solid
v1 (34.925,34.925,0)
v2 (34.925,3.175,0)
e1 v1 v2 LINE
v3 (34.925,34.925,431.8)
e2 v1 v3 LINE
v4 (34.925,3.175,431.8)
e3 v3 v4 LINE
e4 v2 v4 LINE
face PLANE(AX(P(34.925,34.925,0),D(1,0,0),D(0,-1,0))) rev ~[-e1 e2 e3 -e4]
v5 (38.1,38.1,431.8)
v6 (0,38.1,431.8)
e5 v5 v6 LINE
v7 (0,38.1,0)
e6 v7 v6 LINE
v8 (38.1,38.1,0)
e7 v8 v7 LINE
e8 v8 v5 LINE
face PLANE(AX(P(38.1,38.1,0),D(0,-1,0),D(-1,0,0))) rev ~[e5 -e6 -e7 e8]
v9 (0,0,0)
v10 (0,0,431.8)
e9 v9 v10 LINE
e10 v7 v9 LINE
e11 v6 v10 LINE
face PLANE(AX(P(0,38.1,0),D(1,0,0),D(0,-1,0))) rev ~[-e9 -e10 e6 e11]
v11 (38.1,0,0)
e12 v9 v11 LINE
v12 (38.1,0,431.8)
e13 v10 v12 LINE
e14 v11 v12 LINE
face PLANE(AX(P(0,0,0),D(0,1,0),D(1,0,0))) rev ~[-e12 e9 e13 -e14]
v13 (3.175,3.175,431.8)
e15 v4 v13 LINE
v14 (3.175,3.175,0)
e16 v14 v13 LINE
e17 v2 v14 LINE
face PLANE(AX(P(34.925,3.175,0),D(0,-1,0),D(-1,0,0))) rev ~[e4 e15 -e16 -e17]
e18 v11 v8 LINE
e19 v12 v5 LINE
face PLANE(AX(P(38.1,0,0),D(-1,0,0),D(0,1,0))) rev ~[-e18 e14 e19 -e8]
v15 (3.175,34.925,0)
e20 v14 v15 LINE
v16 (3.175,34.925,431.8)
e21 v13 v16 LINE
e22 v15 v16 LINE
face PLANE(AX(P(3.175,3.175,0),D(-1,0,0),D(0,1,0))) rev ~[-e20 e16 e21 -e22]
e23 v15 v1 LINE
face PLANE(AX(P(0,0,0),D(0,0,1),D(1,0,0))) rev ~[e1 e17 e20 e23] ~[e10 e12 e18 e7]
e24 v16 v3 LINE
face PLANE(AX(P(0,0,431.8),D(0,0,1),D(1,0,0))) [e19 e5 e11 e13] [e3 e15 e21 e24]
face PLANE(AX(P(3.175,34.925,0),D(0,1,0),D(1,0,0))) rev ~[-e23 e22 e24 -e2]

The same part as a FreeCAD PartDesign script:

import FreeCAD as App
import Part
import Sketcher
from FreeCAD import Vector
Q = App.Units.Quantity


def add_polygon(sketch, points):
    """Adds a closed chain of lines whose ends are joined by coincident constraints."""
    first, n = sketch.GeometryCount, len(points)
    for a, b in zip(points, points[1:] + points[:1]):
        sketch.addGeometry(Part.LineSegment(App.Vector(*a, 0), App.Vector(*b, 0)), False)
    for i in range(n):
        sketch.addConstraint(Sketcher.Constraint("Coincident", first + i, 2, first + (i + 1) % n, 1))

doc = App.newDocument("Part")
body = doc.addObject("PartDesign::Body", "Body")

sketch1 = doc.addObject("Sketcher::SketchObject", "Sketch")
body.addObject(sketch1)
sketch1.AttachmentSupport = (doc.XY_Plane, [""])
sketch1.MapMode = "FlatFace"
add_polygon(sketch1, [(0, 38), (0, 0), (38, 0), (38, 38)])
add_polygon(sketch1, [(3, 3), (3, 35), (35, 35), (35, 3)])
sketch1.addConstraint(Sketcher.Constraint("Vertical", 0))
sketch1.addConstraint(Sketcher.Constraint("Horizontal", 1))
sketch1.addConstraint(Sketcher.Constraint("Vertical", 2))
sketch1.addConstraint(Sketcher.Constraint("Horizontal", 3))
sketch1.addConstraint(Sketcher.Constraint("Vertical", 4))
sketch1.addConstraint(Sketcher.Constraint("Horizontal", 5))
sketch1.addConstraint(Sketcher.Constraint("Vertical", 6))
sketch1.addConstraint(Sketcher.Constraint("Horizontal", 7))
sketch1.addConstraint(Sketcher.Constraint("Coincident", 0, 2, -1, 1))
sketch1.addConstraint(Sketcher.Constraint("Equal", 3, 0))
sketch1.addConstraint(Sketcher.Constraint("Equal", 7, 4))
sketch1.addConstraint(Sketcher.Constraint("DistanceX", 1, 1, 1, 2, Q("1.5 in")))
sketch1.addConstraint(Sketcher.Constraint("DistanceX", -1, 1, 4, 2, Q("0.125 in")))
sketch1.addConstraint(Sketcher.Constraint("DistanceY", -1, 1, 6, 2, Q("0.125 in")))
sketch1.addConstraint(Sketcher.Constraint("DistanceY", 4, 2, 3, 2, Q("0.125 in")))
pad1 = doc.addObject("PartDesign::Pad", "Pad")
body.addObject(pad1)
pad1.Profile = sketch1
pad1.Length = Q("17 in")

doc.recompute()
